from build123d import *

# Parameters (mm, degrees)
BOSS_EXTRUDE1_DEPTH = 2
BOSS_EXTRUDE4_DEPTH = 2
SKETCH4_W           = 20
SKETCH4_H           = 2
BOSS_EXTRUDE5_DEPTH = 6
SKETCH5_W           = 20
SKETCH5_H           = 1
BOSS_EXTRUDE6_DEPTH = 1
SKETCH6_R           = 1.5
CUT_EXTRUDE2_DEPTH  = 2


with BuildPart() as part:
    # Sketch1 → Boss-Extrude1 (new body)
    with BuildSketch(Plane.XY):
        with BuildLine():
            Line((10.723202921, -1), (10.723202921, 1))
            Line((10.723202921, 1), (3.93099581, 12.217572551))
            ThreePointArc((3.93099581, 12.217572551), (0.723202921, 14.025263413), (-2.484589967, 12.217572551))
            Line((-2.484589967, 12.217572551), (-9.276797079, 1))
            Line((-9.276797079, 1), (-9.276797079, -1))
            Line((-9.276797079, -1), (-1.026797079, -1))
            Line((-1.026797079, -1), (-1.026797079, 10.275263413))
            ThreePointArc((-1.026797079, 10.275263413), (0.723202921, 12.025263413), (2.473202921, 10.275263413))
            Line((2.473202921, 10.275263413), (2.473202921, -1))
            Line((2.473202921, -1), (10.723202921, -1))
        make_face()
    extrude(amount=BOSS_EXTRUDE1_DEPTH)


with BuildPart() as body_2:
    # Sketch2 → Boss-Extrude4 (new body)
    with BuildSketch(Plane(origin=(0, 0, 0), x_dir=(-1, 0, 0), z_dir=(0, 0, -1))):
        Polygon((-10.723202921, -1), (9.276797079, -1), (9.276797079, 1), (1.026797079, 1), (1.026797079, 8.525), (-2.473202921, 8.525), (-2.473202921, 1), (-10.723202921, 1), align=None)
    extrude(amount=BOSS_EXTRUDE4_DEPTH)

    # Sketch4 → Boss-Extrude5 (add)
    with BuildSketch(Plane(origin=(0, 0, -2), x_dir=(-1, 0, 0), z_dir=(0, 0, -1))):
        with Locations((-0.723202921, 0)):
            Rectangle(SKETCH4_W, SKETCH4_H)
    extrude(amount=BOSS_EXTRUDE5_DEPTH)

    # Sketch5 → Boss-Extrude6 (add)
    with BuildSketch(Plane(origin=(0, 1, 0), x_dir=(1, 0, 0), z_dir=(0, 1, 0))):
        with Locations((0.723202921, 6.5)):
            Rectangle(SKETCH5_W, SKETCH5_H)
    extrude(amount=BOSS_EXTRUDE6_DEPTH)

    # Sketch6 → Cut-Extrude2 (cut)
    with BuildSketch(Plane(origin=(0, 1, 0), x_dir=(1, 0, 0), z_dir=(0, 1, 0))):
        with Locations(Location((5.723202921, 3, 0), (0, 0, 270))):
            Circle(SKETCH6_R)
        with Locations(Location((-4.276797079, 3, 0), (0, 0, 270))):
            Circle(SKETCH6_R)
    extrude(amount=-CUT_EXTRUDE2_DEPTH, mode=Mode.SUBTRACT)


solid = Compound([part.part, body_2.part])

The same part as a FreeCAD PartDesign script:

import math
import FreeCAD as App
import Part
import Sketcher
Q = App.Units.Quantity

doc = App.newDocument("Part")
body = doc.addObject("PartDesign::Body", "Body")

# Sketch on XY plane
sketch1 = body.newObject("Sketcher::SketchObject", "Sketch")
sketch1.AttachmentSupport = (doc.getObject("XY_Plane"), [""])
sketch1.MapMode = "FlatFace"
sketch1.addGeometry(Part.LineSegment(App.Vector(10.7, -1, 0), App.Vector(10.7, 1, 0)), False)
sketch1.addGeometry(Part.LineSegment(App.Vector(10.7, 1, 0), App.Vector(3.9, 12.2, 0)), False)
sketch1.addGeometry(Part.ArcOfCircle(Part.Circle(App.Vector(0.7, 10.3, 0), App.Vector(0, 0, 1), 3.8), math.radians(31), math.radians(149)), False)
sketch1.addGeometry(Part.LineSegment(App.Vector(-2.5, 12.2, 0), App.Vector(-9.3, 1, 0)), False)
sketch1.addGeometry(Part.LineSegment(App.Vector(-9.3, 1, 0), App.Vector(-9.3, -1, 0)), False)
sketch1.addGeometry(Part.LineSegment(App.Vector(-9.3, -1, 0), App.Vector(-1, -1, 0)), False)
sketch1.addGeometry(Part.LineSegment(App.Vector(-1, -1, 0), App.Vector(-1, 10.3, 0)), False)
sketch1.addGeometry(Part.ArcOfCircle(Part.Circle(App.Vector(0.7, 10.3, 0), App.Vector(0, 0, 1), 1.8), math.radians(0), math.radians(180)), False)
sketch1.addGeometry(Part.LineSegment(App.Vector(2.5, 10.3, 0), App.Vector(2.5, -1, 0)), False)
sketch1.addGeometry(Part.LineSegment(App.Vector(2.5, -1, 0), App.Vector(10.7, -1, 0)), False)
sketch1.addConstraint(Sketcher.Constraint("Coincident", 0, 2, 1, 1))
sketch1.addConstraint(Sketcher.Constraint("Tangent", 1, 2, 2, 1))
sketch1.addConstraint(Sketcher.Constraint("Tangent", 2, 2, 3, 1))
sketch1.addConstraint(Sketcher.Constraint("Coincident", 3, 2, 4, 1))
sketch1.addConstraint(Sketcher.Constraint("Coincident", 4, 2, 5, 1))
sketch1.addConstraint(Sketcher.Constraint("Coincident", 5, 2, 6, 1))
sketch1.addConstraint(Sketcher.Constraint("Tangent", 6, 2, 7, 2))
sketch1.addConstraint(Sketcher.Constraint("Tangent", 7, 1, 8, 1))
sketch1.addConstraint(Sketcher.Constraint("Coincident", 8, 2, 9, 1))
sketch1.addConstraint(Sketcher.Constraint("Coincident", 9, 2, 0, 1))
sketch1.addConstraint(Sketcher.Constraint("Vertical", 0))
sketch1.addConstraint(Sketcher.Constraint("Vertical", 4))
sketch1.addConstraint(Sketcher.Constraint("Horizontal", 5))
sketch1.addConstraint(Sketcher.Constraint("Vertical", 6))
sketch1.addConstraint(Sketcher.Constraint("Vertical", 8))
sketch1.addConstraint(Sketcher.Constraint("Horizontal", 9))
sketch1.addConstraint(Sketcher.Constraint("Coincident", 7, 3, 2, 3))
sketch1.addConstraint(Sketcher.Constraint("Horizontal", 1, 2, 2, 2))
sketch1.addConstraint(Sketcher.Constraint("Horizontal", 0, 2, 3, 2))
sketch1.addConstraint(Sketcher.Constraint("Horizontal", 5, 2, 8, 2))
sketch1.addConstraint(Sketcher.Constraint("DistanceY", 0, 1, 0, 2, Q("2 mm")))
sketch1.addConstraint(Sketcher.Constraint("Radius", 2, Q("3.75 mm")))
sketch1.addConstraint(Sketcher.Constraint("Radius", 7, Q("1.75 mm")))
sketch1.addConstraint(Sketcher.Constraint("DistanceY", -1, 1, 0, 2, Q("1 mm")))
sketch1.addConstraint(Sketcher.Constraint("DistanceX", 2, 3, 0, 2, Q("10 mm")))
sketch1.addConstraint(Sketcher.Constraint("DistanceY", 6, 1, 6, 2, Q("11.275263 mm")))
sketch1.addConstraint(Sketcher.Constraint("DistanceX", 2, 2, -1, 1, Q("2.48459 mm")))
pad1 = body.newObject("PartDesign::Pad", "Pad")
pad1.Profile = sketch1
pad1.Length = 2
body2 = doc.addObject("PartDesign::Body", "Body001")

# Sketch on XY plane
sketch2 = body2.newObject("Sketcher::SketchObject", "Sketch001")
sketch2.AttachmentSupport = (doc.getObject("XY_Plane001"), [""])
sketch2.MapMode = "FlatFace"
sketch2.addGeometry(Part.LineSegment(App.Vector(10.7, -1, 0), App.Vector(-9.3, -1, 0)), False)
sketch2.addGeometry(Part.LineSegment(App.Vector(-9.3, -1, 0), App.Vector(-9.3, 1, 0)), False)
sketch2.addGeometry(Part.LineSegment(App.Vector(-9.3, 1, 0), App.Vector(-1, 1, 0)), False)
sketch2.addGeometry(Part.LineSegment(App.Vector(-1, 1, 0), App.Vector(-1, 8.5, 0)), False)
sketch2.addGeometry(Part.LineSegment(App.Vector(-1, 8.5, 0), App.Vector(2.5, 8.5, 0)), False)
sketch2.addGeometry(Part.LineSegment(App.Vector(2.5, 8.5, 0), App.Vector(2.5, 1, 0)), False)
sketch2.addGeometry(Part.LineSegment(App.Vector(2.5, 1, 0), App.Vector(10.7, 1, 0)), False)
sketch2.addGeometry(Part.LineSegment(App.Vector(10.7, 1, 0), App.Vector(10.7, -1, 0)), False)
sketch2.addConstraint(Sketcher.Constraint("Coincident", 0, 2, 1, 1))
sketch2.addConstraint(Sketcher.Constraint("Coincident", 1, 2, 2, 1))
sketch2.addConstraint(Sketcher.Constraint("Coincident", 2, 2, 3, 1))
sketch2.addConstraint(Sketcher.Constraint("Coincident", 3, 2, 4, 1))
sketch2.addConstraint(Sketcher.Constraint("Coincident", 4, 2, 5, 1))
sketch2.addConstraint(Sketcher.Constraint("Coincident", 5, 2, 6, 1))
sketch2.addConstraint(Sketcher.Constraint("Coincident", 6, 2, 7, 1))
sketch2.addConstraint(Sketcher.Constraint("Coincident", 7, 2, 0, 1))
sketch2.addConstraint(Sketcher.Constraint("Horizontal", 0))
sketch2.addConstraint(Sketcher.Constraint("Vertical", 1))
sketch2.addConstraint(Sketcher.Constraint("Horizontal", 2))
sketch2.addConstraint(Sketcher.Constraint("Vertical", 3))
sketch2.addConstraint(Sketcher.Constraint("Horizontal", 4))
sketch2.addConstraint(Sketcher.Constraint("Vertical", 5))
sketch2.addConstraint(Sketcher.Constraint("Horizontal", 6))
sketch2.addConstraint(Sketcher.Constraint("Vertical", 7))
sketch2.addConstraint(Sketcher.Constraint("Horizontal", 2, 2, 5, 2))
sketch2.addConstraint(Sketcher.Constraint("Equal", 2, 6))
sketch2.addConstraint(Sketcher.Constraint("DistanceX", 0, 2, 0, 1, Q("20 mm")))
sketch2.addConstraint(Sketcher.Constraint("DistanceY", 1, 1, 1, 2, Q("2 mm")))
sketch2.addConstraint(Sketcher.Constraint("DistanceX", 4, 1, 4, 2, Q("3.5 mm")))
sketch2.addConstraint(Sketcher.Constraint("DistanceY", 0, 2, -1, 1, Q("1 mm")))
sketch2.addConstraint(Sketcher.Constraint("DistanceY", 3, 1, 3, 2, Q("7.525 mm")))
sketch2.addConstraint(Sketcher.Constraint("DistanceX", 0, 2, -1, 1, Q("9.276797 mm")))
pad2 = body2.newObject("PartDesign::Pad", "Pad001")
pad2.Profile = sketch2
pad2.Length = 2
pad2.Reversed = True

# Sketch on XY plane
sketch3 = body2.newObject("Sketcher::SketchObject", "Sketch002")
sketch3.AttachmentSupport = (doc.getObject("XY_Plane001"), [""])
sketch3.MapMode = "FlatFace"
sketch3.AttachmentOffset = App.Placement(App.Vector(0, 0, -2), App.Rotation())
sketch3.addGeometry(Part.LineSegment(App.Vector(10.7, 1, 0), App.Vector(10.7, -1, 0)), False)
sketch3.addGeometry(Part.LineSegment(App.Vector(10.7, -1, 0), App.Vector(-9.3, -1, 0)), False)
sketch3.addGeometry(Part.LineSegment(App.Vector(-9.3, -1, 0), App.Vector(-9.3, 1, 0)), False)
sketch3.addGeometry(Part.LineSegment(App.Vector(-9.3, 1, 0), App.Vector(10.7, 1, 0)), False)
sketch3.addConstraint(Sketcher.Constraint("Coincident", 0, 2, 1, 1))
sketch3.addConstraint(Sketcher.Constraint("Coincident", 1, 2, 2, 1))
sketch3.addConstraint(Sketcher.Constraint("Coincident", 2, 2, 3, 1))
sketch3.addConstraint(Sketcher.Constraint("Coincident", 3, 2, 0, 1))
sketch3.addConstraint(Sketcher.Constraint("Vertical", 0))
sketch3.addConstraint(Sketcher.Constraint("Horizontal", 1))
sketch3.addConstraint(Sketcher.Constraint("Vertical", 2))
sketch3.addConstraint(Sketcher.Constraint("Horizontal", 3))
sketch3.addConstraint(Sketcher.Constraint("DistanceX", 1, 2, 1, 1, Q("20 mm")))
sketch3.addConstraint(Sketcher.Constraint("DistanceY", 0, 2, 0, 1, Q("2 mm")))
sketch3.addConstraint(Sketcher.Constraint("DistanceY", 0, 2, -1, 1, Q("1 mm")))
sketch3.addConstraint(Sketcher.Constraint("DistanceX", -1, 1, 0, 2, Q("10.723203 mm")))
pad3 = body2.newObject("PartDesign::Pad", "Pad002")
pad3.Profile = sketch3
pad3.Length = 6
pad3.Reversed = True

# Sketch on XZ plane
sketch4 = body2.newObject("Sketcher::SketchObject", "Sketch003")
sketch4.AttachmentSupport = (doc.getObject("XZ_Plane001"), [""])
sketch4.MapMode = "FlatFace"
sketch4.AttachmentOffset = App.Placement(App.Vector(0, 0, -1), App.Rotation())
sketch4.addGeometry(Part.LineSegment(App.Vector(-9.3, -7, 0), App.Vector(-9.3, -6, 0)), False)
sketch4.addGeometry(Part.LineSegment(App.Vector(-9.3, -6, 0), App.Vector(10.7, -6, 0)), False)
sketch4.addGeometry(Part.LineSegment(App.Vector(10.7, -6, 0), App.Vector(10.7, -7, 0)), False)
sketch4.addGeometry(Part.LineSegment(App.Vector(10.7, -7, 0), App.Vector(-9.3, -7, 0)), False)
sketch4.addConstraint(Sketcher.Constraint("Coincident", 0, 2, 1, 1))
sketch4.addConstraint(Sketcher.Constraint("Coincident", 1, 2, 2, 1))
sketch4.addConstraint(Sketcher.Constraint("Coincident", 2, 2, 3, 1))
sketch4.addConstraint(Sketcher.Constraint("Coincident", 3, 2, 0, 1))
sketch4.addConstraint(Sketcher.Constraint("Vertical", 0))
sketch4.addConstraint(Sketcher.Constraint("Horizontal", 1))
sketch4.addConstraint(Sketcher.Constraint("Vertical", 2))
sketch4.addConstraint(Sketcher.Constraint("Horizontal", 3))
sketch4.addConstraint(Sketcher.Constraint("DistanceX", 1, 1, 1, 2, Q("20 mm")))
sketch4.addConstraint(Sketcher.Constraint("DistanceY", 0, 1, 0, 2, Q("1 mm")))
sketch4.addConstraint(Sketcher.Constraint("DistanceY", 0, 2, -1, 1, Q("6 mm")))
sketch4.addConstraint(Sketcher.Constraint("DistanceX", 0, 2, -1, 1, Q("9.276797 mm")))
pad4 = body2.newObject("PartDesign::Pad", "Pad003")
pad4.Profile = sketch4
pad4.Length = 1
pad4.Reversed = True

# Sketch on XZ plane
sketch5 = body2.newObject("Sketcher::SketchObject", "Sketch004")
sketch5.AttachmentSupport = (doc.getObject("XZ_Plane001"), [""])
sketch5.MapMode = "FlatFace"
sketch5.AttachmentOffset = App.Placement(App.Vector(0, 0, -1), App.Rotation())
sketch5.addGeometry(Part.Circle(App.Vector(5.7, -3, 0), App.Vector(0, 0, 1), 1.5), False)
sketch5.addGeometry(Part.Circle(App.Vector(-4.3, -3, 0), App.Vector(0, 0, 1), 1.5), False)
sketch5.addConstraint(Sketcher.Constraint("Equal", 0, 1))
sketch5.addConstraint(Sketcher.Constraint("Horizontal", 0, 3, 1, 3))
sketch5.addConstraint(Sketcher.Constraint("Diameter", 0, Q("3 mm")))
sketch5.addConstraint(Sketcher.Constraint("DistanceY", 0, 3, -1, 1, Q("3 mm")))
sketch5.addConstraint(Sketcher.Constraint("DistanceX", 1, 3, 0, 3, Q("10 mm")))
sketch5.addConstraint(Sketcher.Constraint("DistanceX", -1, 1, 0, 3, Q("5.723203 mm")))
pocket1 = body2.newObject("PartDesign::Pocket", "Pocket")
pocket1.Profile = sketch5
pocket1.Length = 2
pocket1.Reversed = True

doc.recompute()
